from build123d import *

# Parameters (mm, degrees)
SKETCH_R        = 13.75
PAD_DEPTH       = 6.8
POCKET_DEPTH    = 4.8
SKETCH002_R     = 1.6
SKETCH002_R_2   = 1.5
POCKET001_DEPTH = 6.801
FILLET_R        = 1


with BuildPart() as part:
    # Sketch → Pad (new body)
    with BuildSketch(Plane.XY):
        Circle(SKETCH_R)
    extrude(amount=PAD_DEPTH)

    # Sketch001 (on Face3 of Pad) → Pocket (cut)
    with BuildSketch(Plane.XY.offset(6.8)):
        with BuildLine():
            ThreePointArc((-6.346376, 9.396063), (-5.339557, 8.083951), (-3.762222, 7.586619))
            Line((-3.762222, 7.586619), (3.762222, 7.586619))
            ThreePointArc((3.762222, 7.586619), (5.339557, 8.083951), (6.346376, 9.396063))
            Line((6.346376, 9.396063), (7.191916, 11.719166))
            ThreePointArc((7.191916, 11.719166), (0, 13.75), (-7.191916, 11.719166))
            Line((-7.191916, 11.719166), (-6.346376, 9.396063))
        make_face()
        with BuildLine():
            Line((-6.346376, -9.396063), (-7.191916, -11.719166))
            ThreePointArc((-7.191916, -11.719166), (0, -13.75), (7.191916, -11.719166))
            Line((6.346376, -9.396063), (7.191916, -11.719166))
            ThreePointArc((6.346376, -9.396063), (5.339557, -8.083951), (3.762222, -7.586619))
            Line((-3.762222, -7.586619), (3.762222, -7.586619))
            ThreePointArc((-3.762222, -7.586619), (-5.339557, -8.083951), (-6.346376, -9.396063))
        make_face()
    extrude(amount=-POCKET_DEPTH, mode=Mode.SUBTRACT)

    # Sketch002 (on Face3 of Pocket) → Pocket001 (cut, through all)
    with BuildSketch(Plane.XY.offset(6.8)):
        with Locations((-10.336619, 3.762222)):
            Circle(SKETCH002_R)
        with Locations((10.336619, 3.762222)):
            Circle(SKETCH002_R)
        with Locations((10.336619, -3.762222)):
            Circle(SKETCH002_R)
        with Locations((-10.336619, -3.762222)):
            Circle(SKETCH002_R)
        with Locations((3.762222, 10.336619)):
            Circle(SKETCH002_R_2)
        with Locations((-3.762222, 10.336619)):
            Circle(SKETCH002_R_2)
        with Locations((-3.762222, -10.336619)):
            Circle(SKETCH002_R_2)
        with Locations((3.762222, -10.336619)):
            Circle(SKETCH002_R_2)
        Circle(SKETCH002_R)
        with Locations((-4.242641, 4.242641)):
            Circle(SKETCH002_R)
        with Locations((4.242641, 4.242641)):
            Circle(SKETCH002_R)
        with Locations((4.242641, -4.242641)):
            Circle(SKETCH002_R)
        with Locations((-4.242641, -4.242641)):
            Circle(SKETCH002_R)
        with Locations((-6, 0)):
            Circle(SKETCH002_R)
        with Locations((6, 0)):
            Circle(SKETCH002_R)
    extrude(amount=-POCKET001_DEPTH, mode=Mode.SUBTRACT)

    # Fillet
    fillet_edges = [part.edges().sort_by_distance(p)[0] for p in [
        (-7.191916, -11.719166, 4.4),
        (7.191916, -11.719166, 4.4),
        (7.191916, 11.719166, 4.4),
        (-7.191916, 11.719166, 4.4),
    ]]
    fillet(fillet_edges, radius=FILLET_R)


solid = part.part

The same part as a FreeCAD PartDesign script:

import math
import FreeCAD as App
import Part
import Sketcher

V = App.Vector
Q = App.Units.Quantity


def edges_at(feature, points):
    """Names of the edges that pass closest to the given points."""
    edges = feature.Shape.Edges
    near = lambda p: min(range(len(edges)), key=lambda i: edges[i].distToShape(Part.Vertex(*p))[0])
    return sorted({f"Edge{near(p) + 1}" for p in points})

doc = App.newDocument("Part")
body = doc.addObject("PartDesign::Body", "Body")

sketch1 = body.newObject("Sketcher::SketchObject", "Sketch")
sketch1.AttachmentSupport = (doc.getObject("XY_Plane"), [""])
sketch1.MapMode = "FlatFace"
sketch1.addGeometry(Part.Circle(V(0, 0, 0), V(0, 0, 1), 14), False)
sketch1.addConstraint(Sketcher.Constraint("Coincident", 0, 3, -1, 1))
sketch1.addConstraint(Sketcher.Constraint("Diameter", 0, 27.5))
pad1 = body.newObject("PartDesign::Pad", "Pad")
pad1.Profile = sketch1
pad1.Length = 6.8

sketch2 = body.newObject("Sketcher::SketchObject", "Sketch001")
sketch2.AttachmentSupport = (doc.getObject("XY_Plane"), [""])
sketch2.MapMode = "FlatFace"
sketch2.AttachmentOffset = App.Placement(V(0, 0, 6.8), App.Rotation())
sketch2.addGeometry(Part.ArcOfCircle(Part.Circle(V(-3.8, 10.3, 0), V(0, 0, 1), 2.7), math.radians(-160), math.radians(-90)), False)
sketch2.addGeometry(Part.LineSegment(V(-3.8, 7.6, 0), V(3.8, 7.6, 0)), False)
sketch2.addGeometry(Part.ArcOfCircle(Part.Circle(V(3.8, 10.3, 0), V(0, 0, 1), 2.7), math.radians(-90), math.radians(-20)), False)
sketch2.addGeometry(Part.LineSegment(V(6.3, 9.4, 0), V(7.2, 11.7, 0)), False)
sketch2.addGeometry(Part.ArcOfCircle(Part.Circle(V(0, 0, 0), V(0, 0, 1), 13.8), math.radians(58), math.radians(122)), False)
sketch2.addGeometry(Part.LineSegment(V(-7.2, 11.7, 0), V(-6.3, 9.4, 0)), False)
sketch2.addGeometry(Part.LineSegment(V(-6.3, -9.4, 0), V(-7.2, -11.7, 0)), False)
sketch2.addGeometry(Part.ArcOfCircle(Part.Circle(V(0, 0, 0), V(0, 0, 1), 13.8), math.radians(-122), math.radians(-58)), False)
sketch2.addGeometry(Part.LineSegment(V(7.2, -11.7, 0), V(6.3, -9.4, 0)), False)
sketch2.addGeometry(Part.ArcOfCircle(Part.Circle(V(3.8, -10.3, 0), V(0, 0, 1), 2.7), math.radians(20), math.radians(90)), False)
sketch2.addGeometry(Part.LineSegment(V(3.8, -7.6, 0), V(-3.8, -7.6, 0)), False)
sketch2.addGeometry(Part.ArcOfCircle(Part.Circle(V(-3.8, -10.3, 0), V(0, 0, 1), 2.7), math.radians(90), math.radians(160)), False)
sketch2.addConstraint(Sketcher.Constraint("Tangent", 0, 2, 1, 1))
sketch2.addConstraint(Sketcher.Constraint("Tangent", 1, 2, 2, 1))
sketch2.addConstraint(Sketcher.Constraint("Tangent", 2, 2, 3, 1))
sketch2.addConstraint(Sketcher.Constraint("Coincident", 3, 2, 4, 1))
sketch2.addConstraint(Sketcher.Constraint("Coincident", 4, 2, 5, 1))
sketch2.addConstraint(Sketcher.Constraint("Tangent", 5, 2, 0, 1))
sketch2.addConstraint(Sketcher.Constraint("Coincident", 6, 2, 7, 1))
sketch2.addConstraint(Sketcher.Constraint("Coincident", 7, 2, 8, 1))
sketch2.addConstraint(Sketcher.Constraint("Tangent", 8, 2, 9, 1))
sketch2.addConstraint(Sketcher.Constraint("Tangent", 9, 2, 10, 1))
sketch2.addConstraint(Sketcher.Constraint("Tangent", 10, 2, 11, 1))
sketch2.addConstraint(Sketcher.Constraint("Tangent", 11, 2, 6, 1))
sketch2.addConstraint(Sketcher.Constraint("Horizontal", 1))
sketch2.addConstraint(Sketcher.Constraint("Horizontal", 10))
sketch2.addConstraint(Sketcher.Constraint("Coincident", 4, 3, -1, 1))
sketch2.addConstraint(Sketcher.Constraint("Coincident", 7, 3, -1, 1))
sketch2.addConstraint(Sketcher.Constraint("Equal", 0, 2))
sketch2.addConstraint(Sketcher.Constraint("Equal", 4, 7))
sketch2.addConstraint(Sketcher.Constraint("Equal", 2, 9))
sketch2.addConstraint(Sketcher.Constraint("Equal", 9, 11))
sketch2.addConstraint(Sketcher.Constraint("Symmetric", 0, 3, 9, 3, -1, 1))
sketch2.addConstraint(Sketcher.Constraint("Symmetric", 2, 2, 11, 2, -1, 1))
sketch2.addConstraint(Sketcher.Constraint("Symmetric", 2, 2, 5, 2, -2))
sketch2.addConstraint(Sketcher.Constraint("Parallel", 5, 8))
sketch2.addConstraint(Sketcher.Constraint("Angle", 3, Q("70.000007 deg")))
sketch2.addConstraint(Sketcher.Constraint("Radius", 0, 2.75))
sketch2.addConstraint(Sketcher.Constraint("Radius", 4, 13.750002))
sketch2.addConstraint(Sketcher.Constraint("DistanceX", 5, 2, 1, 2, 10.108598))
sketch2.addConstraint(Sketcher.Constraint("DistanceY", -1, 1, 0, 3, 10.336619))
pocket1 = body.newObject("PartDesign::Pocket", "Pocket")
pocket1.Profile = sketch2
pocket1.Length = 4.8

sketch3 = body.newObject("Sketcher::SketchObject", "Sketch002")
sketch3.AttachmentSupport = (doc.getObject("XY_Plane"), [""])
sketch3.MapMode = "FlatFace"
sketch3.AttachmentOffset = App.Placement(V(0, 0, 6.8), App.Rotation())
sketch3.addGeometry(Part.Circle(V(-10.3, 3.8, 0), V(0, 0, 1), 1.6), False)
sketch3.addGeometry(Part.Circle(V(10.3, 3.8, 0), V(0, 0, 1), 1.6), False)
sketch3.addGeometry(Part.Circle(V(10.3, -3.8, 0), V(0, 0, 1), 1.6), False)
sketch3.addGeometry(Part.Circle(V(-10.3, -3.8, 0), V(0, 0, 1), 1.6), False)
sketch3.addGeometry(Part.Circle(V(3.8, 10.3, 0), V(0, 0, 1), 1.5), False)
sketch3.addGeometry(Part.Circle(V(-3.8, 10.3, 0), V(0, 0, 1), 1.5), False)
sketch3.addGeometry(Part.Circle(V(-3.8, -10.3, 0), V(0, 0, 1), 1.5), False)
sketch3.addGeometry(Part.Circle(V(3.8, -10.3, 0), V(0, 0, 1), 1.5), False)
sketch3.addGeometry(Part.Circle(V(0, 0, 0), V(0, 0, 1), 1.6), False)
sketch3.addGeometry(Part.Circle(V(-4.2, 4.2, 0), V(0, 0, 1), 1.6), False)
sketch3.addGeometry(Part.Circle(V(4.2, 4.2, 0), V(0, 0, 1), 1.6), False)
sketch3.addGeometry(Part.Circle(V(4.2, -4.2, 0), V(0, 0, 1), 1.6), False)
sketch3.addGeometry(Part.Circle(V(-4.2, -4.2, 0), V(0, 0, 1), 1.6), False)
sketch3.addGeometry(Part.Circle(V(-6, 0, 0), V(0, 0, 1), 1.6), False)
sketch3.addGeometry(Part.Circle(V(6, 0, 0), V(0, 0, 1), 1.6), False)
sketch3.addConstraint(Sketcher.Constraint("Coincident", 8, 3, -1, 1))
sketch3.addConstraint(Sketcher.Constraint("Equal", 0, 1))
sketch3.addConstraint(Sketcher.Constraint("Equal", 1, 2))
sketch3.addConstraint(Sketcher.Constraint("Equal", 2, 3))
sketch3.addConstraint(Sketcher.Constraint("Equal", 4, 5))
sketch3.addConstraint(Sketcher.Constraint("Equal", 5, 6))
sketch3.addConstraint(Sketcher.Constraint("Equal", 6, 7))
sketch3.addConstraint(Sketcher.Constraint("Equal", 3, 8))
sketch3.addConstraint(Sketcher.Constraint("Equal", 8, 9))
sketch3.addConstraint(Sketcher.Constraint("Equal", 9, 10))
sketch3.addConstraint(Sketcher.Constraint("Equal", 10, 11))
sketch3.addConstraint(Sketcher.Constraint("Equal", 11, 12))
sketch3.addConstraint(Sketcher.Constraint("Equal", 12, 13))
sketch3.addConstraint(Sketcher.Constraint("Equal", 13, 14))
sketch3.addConstraint(Sketcher.Constraint("Symmetric", 0, 3, 2, 3, -1, 1))
sketch3.addConstraint(Sketcher.Constraint("Symmetric", 1, 3, 3, 3, -1, 1))
sketch3.addConstraint(Sketcher.Constraint("Symmetric", 4, 3, 6, 3, -1, 1))
sketch3.addConstraint(Sketcher.Constraint("Symmetric", 5, 3, 7, 3, -1, 1))
sketch3.addConstraint(Sketcher.Constraint("Symmetric", 9, 3, 11, 3, -1, 1))
sketch3.addConstraint(Sketcher.Constraint("Symmetric", 10, 3, 12, 3, -1, 1))
sketch3.addConstraint(Sketcher.Constraint("Symmetric", 13, 3, 14, 3, -1, 1))
sketch3.addConstraint(Sketcher.Constraint("Symmetric", 0, 3, 1, 3, -2))
sketch3.addConstraint(Sketcher.Constraint("Symmetric", 4, 3, 5, 3, -2))
sketch3.addConstraint(Sketcher.Constraint("Symmetric", 9, 3, 10, 3, -2))
sketch3.addConstraint(Sketcher.Constraint("PointOnObject", 13, 3, -1))
sketch3.addConstraint(Sketcher.Constraint("Diameter", 4, 3.0))
sketch3.addConstraint(Sketcher.Constraint("Diameter", 0, 3.2))
sketch3.addConstraint(Sketcher.Constraint("DistanceX", 13, 3, -1, 1, 6.0))
sketch3.addConstraint(Sketcher.Constraint("DistanceX", 0, 3, -1, 1, 10.336619))
sketch3.addConstraint(Sketcher.Constraint("DistanceY", -1, 1, 0, 3, 3.762222))
sketch3.addConstraint(Sketcher.Constraint("DistanceX", -1, 1, 4, 3, 3.762222))
sketch3.addConstraint(Sketcher.Constraint("DistanceY", -1, 1, 4, 3, 10.336619))
sketch3.addConstraint(Sketcher.Constraint("DistanceX", 9, 3, -1, 1, 4.242641))
sketch3.addConstraint(Sketcher.Constraint("DistanceY", -1, 1, 9, 3, 4.242641))
pocket2 = body.newObject("PartDesign::Pocket", "Pocket001")
pocket2.Profile = sketch3
pocket2.Type = "ThroughAll"
doc.recompute()

fillet = body.newObject("PartDesign::Fillet", "Fillet")
fillet.Base = (pocket2, edges_at(pocket2, [
    (-7.192, -11.719, 4.4),
    (7.192, -11.719, 4.4),
    (7.192, 11.719, 4.4),
    (-7.192, 11.719, 4.4),
]))
fillet.Radius = 1

doc.recompute()
